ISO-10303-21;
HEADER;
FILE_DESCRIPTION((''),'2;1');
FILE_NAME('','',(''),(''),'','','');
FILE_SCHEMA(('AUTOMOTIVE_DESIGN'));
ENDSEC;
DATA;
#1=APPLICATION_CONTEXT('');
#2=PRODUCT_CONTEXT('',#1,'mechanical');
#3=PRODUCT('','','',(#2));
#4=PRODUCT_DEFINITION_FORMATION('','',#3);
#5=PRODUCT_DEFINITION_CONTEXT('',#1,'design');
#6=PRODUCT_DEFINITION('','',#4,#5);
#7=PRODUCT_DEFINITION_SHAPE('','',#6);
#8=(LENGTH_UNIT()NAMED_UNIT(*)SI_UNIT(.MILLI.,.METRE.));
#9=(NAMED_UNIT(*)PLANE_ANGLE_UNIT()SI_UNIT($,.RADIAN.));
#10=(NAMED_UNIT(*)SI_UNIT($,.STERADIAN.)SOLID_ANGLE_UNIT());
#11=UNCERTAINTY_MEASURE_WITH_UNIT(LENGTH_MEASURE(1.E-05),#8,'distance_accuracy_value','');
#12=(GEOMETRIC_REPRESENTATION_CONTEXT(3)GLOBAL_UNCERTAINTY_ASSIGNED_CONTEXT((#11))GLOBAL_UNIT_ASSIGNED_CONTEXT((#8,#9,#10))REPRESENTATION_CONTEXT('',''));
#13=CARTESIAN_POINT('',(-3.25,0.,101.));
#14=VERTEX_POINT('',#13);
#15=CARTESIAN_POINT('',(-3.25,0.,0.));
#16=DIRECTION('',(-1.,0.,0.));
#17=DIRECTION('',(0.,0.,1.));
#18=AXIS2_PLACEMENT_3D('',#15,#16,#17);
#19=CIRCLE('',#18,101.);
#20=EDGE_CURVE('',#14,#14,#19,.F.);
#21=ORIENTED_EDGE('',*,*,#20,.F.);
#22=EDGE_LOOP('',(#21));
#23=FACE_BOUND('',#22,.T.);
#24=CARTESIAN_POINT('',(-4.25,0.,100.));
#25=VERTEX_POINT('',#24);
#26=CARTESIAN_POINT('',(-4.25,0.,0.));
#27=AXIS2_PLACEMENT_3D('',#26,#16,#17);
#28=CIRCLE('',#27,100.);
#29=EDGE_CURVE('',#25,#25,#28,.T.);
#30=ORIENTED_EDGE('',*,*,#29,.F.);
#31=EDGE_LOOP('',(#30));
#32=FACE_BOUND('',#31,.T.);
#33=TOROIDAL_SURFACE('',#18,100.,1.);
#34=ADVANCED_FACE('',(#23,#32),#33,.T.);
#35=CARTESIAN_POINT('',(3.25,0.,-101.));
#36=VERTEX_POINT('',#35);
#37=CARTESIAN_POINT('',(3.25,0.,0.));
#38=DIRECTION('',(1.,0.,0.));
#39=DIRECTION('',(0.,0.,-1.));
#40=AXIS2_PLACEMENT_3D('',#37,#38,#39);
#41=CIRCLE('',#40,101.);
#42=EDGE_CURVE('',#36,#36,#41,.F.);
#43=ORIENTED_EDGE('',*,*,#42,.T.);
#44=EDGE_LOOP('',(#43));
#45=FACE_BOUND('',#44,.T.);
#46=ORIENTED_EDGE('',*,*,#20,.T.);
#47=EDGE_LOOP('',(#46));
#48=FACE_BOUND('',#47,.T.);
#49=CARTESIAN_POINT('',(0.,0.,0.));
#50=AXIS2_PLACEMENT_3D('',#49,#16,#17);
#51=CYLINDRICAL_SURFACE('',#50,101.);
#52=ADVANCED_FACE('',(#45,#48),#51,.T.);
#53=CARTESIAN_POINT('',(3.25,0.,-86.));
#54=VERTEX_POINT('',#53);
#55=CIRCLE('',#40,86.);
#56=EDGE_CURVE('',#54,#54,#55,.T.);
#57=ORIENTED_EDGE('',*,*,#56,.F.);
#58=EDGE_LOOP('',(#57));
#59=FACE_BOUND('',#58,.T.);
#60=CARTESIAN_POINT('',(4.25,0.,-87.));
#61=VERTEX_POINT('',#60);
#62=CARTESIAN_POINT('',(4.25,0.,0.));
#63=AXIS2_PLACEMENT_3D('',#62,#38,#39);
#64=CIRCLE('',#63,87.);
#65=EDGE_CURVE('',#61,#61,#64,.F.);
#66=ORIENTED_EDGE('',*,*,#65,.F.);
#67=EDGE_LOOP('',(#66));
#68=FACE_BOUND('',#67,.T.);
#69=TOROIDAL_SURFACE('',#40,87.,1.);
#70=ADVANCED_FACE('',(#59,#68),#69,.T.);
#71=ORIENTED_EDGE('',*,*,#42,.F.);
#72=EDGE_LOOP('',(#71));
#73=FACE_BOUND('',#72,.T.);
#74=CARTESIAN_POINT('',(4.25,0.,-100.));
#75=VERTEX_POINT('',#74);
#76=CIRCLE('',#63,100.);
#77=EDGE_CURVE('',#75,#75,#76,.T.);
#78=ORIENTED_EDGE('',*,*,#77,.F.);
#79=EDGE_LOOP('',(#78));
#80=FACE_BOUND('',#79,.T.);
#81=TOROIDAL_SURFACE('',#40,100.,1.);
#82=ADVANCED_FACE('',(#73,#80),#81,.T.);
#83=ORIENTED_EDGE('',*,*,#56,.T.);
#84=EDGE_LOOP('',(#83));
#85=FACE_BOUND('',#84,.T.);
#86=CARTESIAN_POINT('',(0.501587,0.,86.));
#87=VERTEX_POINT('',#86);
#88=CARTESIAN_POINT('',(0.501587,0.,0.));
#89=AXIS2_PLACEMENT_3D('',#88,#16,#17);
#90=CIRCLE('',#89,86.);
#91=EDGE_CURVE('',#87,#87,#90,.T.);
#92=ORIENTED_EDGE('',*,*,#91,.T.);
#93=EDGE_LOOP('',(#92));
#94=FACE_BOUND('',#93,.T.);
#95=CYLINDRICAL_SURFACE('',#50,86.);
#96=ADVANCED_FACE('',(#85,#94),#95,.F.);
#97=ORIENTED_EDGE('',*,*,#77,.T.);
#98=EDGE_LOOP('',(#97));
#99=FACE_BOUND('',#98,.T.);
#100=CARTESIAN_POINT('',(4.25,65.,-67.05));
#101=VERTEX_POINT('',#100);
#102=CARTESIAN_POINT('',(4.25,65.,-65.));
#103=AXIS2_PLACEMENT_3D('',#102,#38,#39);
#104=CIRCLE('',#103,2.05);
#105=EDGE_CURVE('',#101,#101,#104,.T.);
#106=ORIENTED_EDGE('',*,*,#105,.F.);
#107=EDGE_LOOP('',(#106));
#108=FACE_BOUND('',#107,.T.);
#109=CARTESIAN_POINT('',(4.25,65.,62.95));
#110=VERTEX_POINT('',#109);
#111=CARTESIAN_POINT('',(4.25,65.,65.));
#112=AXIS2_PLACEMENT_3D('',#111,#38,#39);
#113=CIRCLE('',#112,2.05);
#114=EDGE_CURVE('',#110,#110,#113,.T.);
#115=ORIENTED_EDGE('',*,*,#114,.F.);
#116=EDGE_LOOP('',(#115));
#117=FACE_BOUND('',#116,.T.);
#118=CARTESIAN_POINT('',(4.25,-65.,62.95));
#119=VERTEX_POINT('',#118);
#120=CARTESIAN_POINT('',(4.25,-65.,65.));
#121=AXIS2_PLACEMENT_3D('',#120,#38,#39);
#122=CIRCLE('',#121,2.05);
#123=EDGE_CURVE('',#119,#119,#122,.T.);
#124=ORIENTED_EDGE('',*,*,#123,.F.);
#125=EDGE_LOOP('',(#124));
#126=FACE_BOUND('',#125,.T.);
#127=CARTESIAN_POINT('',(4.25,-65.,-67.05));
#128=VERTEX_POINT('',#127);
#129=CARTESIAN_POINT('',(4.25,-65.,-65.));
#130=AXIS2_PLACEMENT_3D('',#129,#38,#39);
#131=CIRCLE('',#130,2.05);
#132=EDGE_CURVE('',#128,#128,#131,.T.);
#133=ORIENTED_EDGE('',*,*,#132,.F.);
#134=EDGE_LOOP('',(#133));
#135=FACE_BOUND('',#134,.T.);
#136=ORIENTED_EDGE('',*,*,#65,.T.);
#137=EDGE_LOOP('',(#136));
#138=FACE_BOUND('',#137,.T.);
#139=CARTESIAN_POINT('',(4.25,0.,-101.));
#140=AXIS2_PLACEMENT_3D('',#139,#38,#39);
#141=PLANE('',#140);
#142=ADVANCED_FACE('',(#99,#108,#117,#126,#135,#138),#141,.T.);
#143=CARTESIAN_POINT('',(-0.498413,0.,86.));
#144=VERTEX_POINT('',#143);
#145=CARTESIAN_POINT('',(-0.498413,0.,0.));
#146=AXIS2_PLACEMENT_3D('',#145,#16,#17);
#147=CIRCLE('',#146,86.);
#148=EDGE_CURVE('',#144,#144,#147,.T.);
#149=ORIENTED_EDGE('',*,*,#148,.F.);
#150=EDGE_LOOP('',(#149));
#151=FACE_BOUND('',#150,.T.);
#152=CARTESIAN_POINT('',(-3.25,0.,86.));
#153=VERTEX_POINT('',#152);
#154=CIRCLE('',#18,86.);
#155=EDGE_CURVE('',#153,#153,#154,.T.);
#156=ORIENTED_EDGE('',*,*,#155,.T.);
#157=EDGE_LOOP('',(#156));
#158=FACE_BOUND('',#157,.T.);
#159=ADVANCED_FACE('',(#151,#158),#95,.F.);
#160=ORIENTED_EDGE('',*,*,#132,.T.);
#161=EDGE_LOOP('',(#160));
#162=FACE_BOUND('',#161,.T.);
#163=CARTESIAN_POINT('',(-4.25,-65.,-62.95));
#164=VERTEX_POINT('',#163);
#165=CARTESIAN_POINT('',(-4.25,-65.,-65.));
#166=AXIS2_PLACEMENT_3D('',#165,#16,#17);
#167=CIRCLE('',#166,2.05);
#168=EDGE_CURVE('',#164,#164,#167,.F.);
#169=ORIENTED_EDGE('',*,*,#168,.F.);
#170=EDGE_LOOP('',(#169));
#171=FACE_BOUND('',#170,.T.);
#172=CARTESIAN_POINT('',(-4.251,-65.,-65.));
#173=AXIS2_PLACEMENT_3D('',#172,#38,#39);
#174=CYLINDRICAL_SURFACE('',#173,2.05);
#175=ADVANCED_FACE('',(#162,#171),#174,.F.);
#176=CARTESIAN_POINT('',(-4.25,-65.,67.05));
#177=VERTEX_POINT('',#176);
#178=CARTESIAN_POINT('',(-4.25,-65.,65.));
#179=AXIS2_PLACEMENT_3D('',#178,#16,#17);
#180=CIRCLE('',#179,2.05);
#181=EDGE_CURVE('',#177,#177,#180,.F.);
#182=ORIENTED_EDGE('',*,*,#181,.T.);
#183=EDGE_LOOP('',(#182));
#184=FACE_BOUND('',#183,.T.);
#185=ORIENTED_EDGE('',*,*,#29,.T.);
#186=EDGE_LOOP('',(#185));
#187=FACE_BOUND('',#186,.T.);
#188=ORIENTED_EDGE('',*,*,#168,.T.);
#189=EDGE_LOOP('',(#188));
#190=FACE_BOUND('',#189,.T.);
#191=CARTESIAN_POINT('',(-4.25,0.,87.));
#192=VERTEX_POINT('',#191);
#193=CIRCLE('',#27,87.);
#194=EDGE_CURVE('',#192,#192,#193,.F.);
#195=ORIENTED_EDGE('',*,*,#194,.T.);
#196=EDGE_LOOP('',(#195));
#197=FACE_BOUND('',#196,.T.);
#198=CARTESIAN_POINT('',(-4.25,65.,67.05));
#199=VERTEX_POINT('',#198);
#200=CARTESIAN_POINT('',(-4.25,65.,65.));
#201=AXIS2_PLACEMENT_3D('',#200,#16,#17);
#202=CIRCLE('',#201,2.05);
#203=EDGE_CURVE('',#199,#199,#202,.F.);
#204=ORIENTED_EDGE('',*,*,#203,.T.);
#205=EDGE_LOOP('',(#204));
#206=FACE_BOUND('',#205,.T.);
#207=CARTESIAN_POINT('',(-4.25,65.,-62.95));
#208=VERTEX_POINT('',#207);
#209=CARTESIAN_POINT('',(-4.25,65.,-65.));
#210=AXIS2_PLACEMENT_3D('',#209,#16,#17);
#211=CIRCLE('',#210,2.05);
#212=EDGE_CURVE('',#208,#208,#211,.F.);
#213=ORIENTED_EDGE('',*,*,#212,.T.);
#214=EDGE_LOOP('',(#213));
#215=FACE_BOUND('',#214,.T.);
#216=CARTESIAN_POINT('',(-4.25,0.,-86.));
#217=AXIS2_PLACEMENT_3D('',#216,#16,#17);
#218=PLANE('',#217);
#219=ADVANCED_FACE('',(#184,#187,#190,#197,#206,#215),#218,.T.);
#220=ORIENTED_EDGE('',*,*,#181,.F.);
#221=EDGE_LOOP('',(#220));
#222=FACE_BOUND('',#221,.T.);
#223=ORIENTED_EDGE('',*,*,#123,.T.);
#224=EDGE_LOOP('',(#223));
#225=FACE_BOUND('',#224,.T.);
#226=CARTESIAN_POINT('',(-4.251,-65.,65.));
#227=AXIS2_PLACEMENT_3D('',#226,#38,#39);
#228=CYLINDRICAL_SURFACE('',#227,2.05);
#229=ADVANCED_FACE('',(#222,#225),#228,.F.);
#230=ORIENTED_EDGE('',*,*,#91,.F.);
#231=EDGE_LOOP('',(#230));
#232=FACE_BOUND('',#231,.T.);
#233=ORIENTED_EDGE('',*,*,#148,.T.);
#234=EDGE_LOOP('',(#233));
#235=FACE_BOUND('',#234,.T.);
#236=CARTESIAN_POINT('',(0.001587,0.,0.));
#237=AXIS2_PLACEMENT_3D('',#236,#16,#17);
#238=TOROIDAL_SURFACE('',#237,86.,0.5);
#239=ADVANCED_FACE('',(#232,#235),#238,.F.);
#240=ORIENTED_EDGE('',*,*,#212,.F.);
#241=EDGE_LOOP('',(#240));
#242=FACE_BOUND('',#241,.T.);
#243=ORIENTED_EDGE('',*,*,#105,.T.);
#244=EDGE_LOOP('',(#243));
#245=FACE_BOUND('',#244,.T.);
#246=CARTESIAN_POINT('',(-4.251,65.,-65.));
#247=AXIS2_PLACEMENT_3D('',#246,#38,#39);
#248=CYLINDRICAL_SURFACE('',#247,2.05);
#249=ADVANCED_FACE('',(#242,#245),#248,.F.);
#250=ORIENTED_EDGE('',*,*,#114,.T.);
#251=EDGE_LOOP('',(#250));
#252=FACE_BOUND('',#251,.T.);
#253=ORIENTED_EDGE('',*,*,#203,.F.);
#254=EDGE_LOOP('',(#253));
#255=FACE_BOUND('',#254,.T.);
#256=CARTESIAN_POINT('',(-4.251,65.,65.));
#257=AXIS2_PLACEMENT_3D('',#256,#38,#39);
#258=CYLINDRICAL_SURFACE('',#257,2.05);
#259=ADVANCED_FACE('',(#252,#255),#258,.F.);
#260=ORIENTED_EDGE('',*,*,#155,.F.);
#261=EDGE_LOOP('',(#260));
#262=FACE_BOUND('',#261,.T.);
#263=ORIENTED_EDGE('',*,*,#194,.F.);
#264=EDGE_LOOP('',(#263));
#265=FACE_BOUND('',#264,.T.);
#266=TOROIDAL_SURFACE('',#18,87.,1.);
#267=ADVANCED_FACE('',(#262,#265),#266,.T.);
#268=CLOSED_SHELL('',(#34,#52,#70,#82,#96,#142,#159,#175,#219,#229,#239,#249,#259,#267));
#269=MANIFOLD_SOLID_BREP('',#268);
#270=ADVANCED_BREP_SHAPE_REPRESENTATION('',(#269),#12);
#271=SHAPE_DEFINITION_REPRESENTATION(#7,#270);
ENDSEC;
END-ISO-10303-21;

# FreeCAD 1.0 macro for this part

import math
import FreeCAD as App
import Part
import Sketcher
from FreeCAD import Vector


def edges_at(feature, points):
    """Names of the edges that pass closest to the given points."""
    edges = feature.Shape.Edges
    near = lambda p: min(range(len(edges)), key=lambda i: edges[i].distToShape(Part.Vertex(*p))[0])
    return sorted({f"Edge{near(p) + 1}" for p in points})

doc = App.newDocument("Part")
body = doc.addObject("PartDesign::Body", "Body")

sketch1 = body.newObject("Sketcher::SketchObject", "Sketch")
sketch1.AttachmentSupport = (doc.getObject("XZ_Plane"), [""])
sketch1.MapMode = "FlatFace"
sketch1.addGeometry(Part.LineSegment(Vector(4.25, -101, 0), Vector(-4.25, -101, 0)), False)
sketch1.addGeometry(Part.LineSegment(Vector(-4.25, -101, 0), Vector(-4.25, -86, 0)), False)
sketch1.addGeometry(Part.LineSegment(Vector(-4.25, -86, 0), Vector(-0.498413, -86, 0)), False)
sketch1.addGeometry(Part.ArcOfCircle(Part.Circle(Vector(0.001587, -86, 0), Vector(0, 0, 1), 0.5), math.radians(180), math.radians(360)), False)
sketch1.addGeometry(Part.LineSegment(Vector(0.501587, -86, 0), Vector(4.25, -86, 0)), False)
sketch1.addGeometry(Part.LineSegment(Vector(4.25, -86, 0), Vector(4.25, -101, 0)), False)
sketch1.addConstraint(Sketcher.Constraint("Coincident", 0, 2, 1, 1))
sketch1.addConstraint(Sketcher.Constraint("Coincident", 1, 2, 2, 1))
sketch1.addConstraint(Sketcher.Constraint("Coincident", 2, 2, 3, 1))
sketch1.addConstraint(Sketcher.Constraint("Coincident", 3, 2, 4, 1))
sketch1.addConstraint(Sketcher.Constraint("Coincident", 4, 2, 5, 1))
sketch1.addConstraint(Sketcher.Constraint("Coincident", 5, 2, 0, 1))
sketch1.addConstraint(Sketcher.Constraint("Horizontal", 0))
sketch1.addConstraint(Sketcher.Constraint("Vertical", 1))
sketch1.addConstraint(Sketcher.Constraint("Horizontal", 2))
sketch1.addConstraint(Sketcher.Constraint("Horizontal", 4))
sketch1.addConstraint(Sketcher.Constraint("Vertical", 5))
sketch1.addConstraint(Sketcher.Constraint("Symmetric", 1, 2, 4, 2, -2))
sketch1.addConstraint(Sketcher.Constraint("Horizontal", 3, 3, 1, 2))
sketch1.addConstraint(Sketcher.Constraint("Radius", 3, 0.5))
sketch1.addConstraint(Sketcher.Constraint("DistanceY", 1, 1, 1, 2, 15.0))
sketch1.addConstraint(Sketcher.Constraint("DistanceX", 0, 2, 0, 1, 8.5))
sketch1.addConstraint(Sketcher.Constraint("DistanceY", 3, 3, -1, 1, 86.0))
sketch1.addConstraint(Sketcher.Constraint("DistanceX", 2, 1, 2, 2, 3.751587))
revolution = body.newObject("PartDesign::Revolution", "Revolution")
revolution.Profile = sketch1
revolution.ReferenceAxis = (sketch1, ["H_Axis"])
revolution.Angle = 360
doc.recompute()

fillet = body.newObject("PartDesign::Fillet", "Fillet")
fillet.Base = (revolution, edges_at(revolution, [
    (-4.25, 0, -86),
    (-4.25, 0, -101),
    (4.25, 0, -101),
    (4.25, 0, -86),
]))
fillet.Radius = 1

sketch2 = body.newObject("Sketcher::SketchObject", "Sketch001")
sketch2.AttachmentSupport = (doc.getObject("YZ_Plane"), [""])
sketch2.MapMode = "FlatFace"
sketch2.AttachmentOffset = App.Placement(Vector(0, 0, 4.25), App.Rotation())
sketch2.addGeometry(Part.Circle(Vector(-65, 65, 0), Vector(0, 0, 1), 2.05), False)
sketch2.addConstraint(Sketcher.Constraint("Diameter", 0, 4.1))
sketch2.addConstraint(Sketcher.Constraint("DistanceX", 0, 3, -1, 1, 65.0))
sketch2.addConstraint(Sketcher.Constraint("DistanceY", -1, 1, 0, 3, 65.0))
pocket1 = body.newObject("PartDesign::Pocket", "Pocket")
pocket1.Profile = sketch2
pocket1.Type = "UpToFirst"

sketch3 = body.newObject("Sketcher::SketchObject", "Sketch002")
sketch3.AttachmentSupport = (doc.getObject("YZ_Plane"), [""])
sketch3.MapMode = "FlatFace"
sketch3.AttachmentOffset = App.Placement(Vector(0, 0, 4.25), App.Rotation())
sketch3.addGeometry(Part.Circle(Vector(65, 65, 0), Vector(0, 0, 1), 2.05), False)
sketch3.addConstraint(Sketcher.Constraint("Diameter", 0, 4.1))
sketch3.addConstraint(Sketcher.Constraint("DistanceX", -1, 1, 0, 3, 65.0))
sketch3.addConstraint(Sketcher.Constraint("DistanceY", -1, 1, 0, 3, 65.0))
pocket2 = body.newObject("PartDesign::Pocket", "Pocket001")
pocket2.Profile = sketch3
pocket2.Type = "UpToFirst"

sketch4 = body.newObject("Sketcher::SketchObject", "Sketch003")
sketch4.AttachmentSupport = (doc.getObject("YZ_Plane"), [""])
sketch4.MapMode = "FlatFace"
sketch4.AttachmentOffset = App.Placement(Vector(0, 0, 4.25), App.Rotation())
sketch4.addGeometry(Part.Circle(Vector(65, -65, 0), Vector(0, 0, 1), 2.05), False)
sketch4.addConstraint(Sketcher.Constraint("Diameter", 0, 4.1))
sketch4.addConstraint(Sketcher.Constraint("DistanceX", -1, 1, 0, 3, 65.0))
sketch4.addConstraint(Sketcher.Constraint("DistanceY", 0, 3, -1, 1, 65.0))
pocket3 = body.newObject("PartDesign::Pocket", "Pocket002")
pocket3.Profile = sketch4
pocket3.Type = "UpToFirst"

sketch5 = body.newObject("Sketcher::SketchObject", "Sketch004")
sketch5.AttachmentSupport = (doc.getObject("YZ_Plane"), [""])
sketch5.MapMode = "FlatFace"
sketch5.AttachmentOffset = App.Placement(Vector(0, 0, 4.25), App.Rotation())
sketch5.addGeometry(Part.Circle(Vector(-65, -65, 0), Vector(0, 0, 1), 2.05), False)
sketch5.addConstraint(Sketcher.Constraint("Diameter", 0, 4.1))
sketch5.addConstraint(Sketcher.Constraint("DistanceX", 0, 3, -1, 1, 65.0))
sketch5.addConstraint(Sketcher.Constraint("DistanceY", 0, 3, -1, 1, 65.0))
pocket4 = body.newObject("PartDesign::Pocket", "Pocket003")
pocket4.Profile = sketch5
pocket4.Type = "UpToFirst"

doc.recompute()
